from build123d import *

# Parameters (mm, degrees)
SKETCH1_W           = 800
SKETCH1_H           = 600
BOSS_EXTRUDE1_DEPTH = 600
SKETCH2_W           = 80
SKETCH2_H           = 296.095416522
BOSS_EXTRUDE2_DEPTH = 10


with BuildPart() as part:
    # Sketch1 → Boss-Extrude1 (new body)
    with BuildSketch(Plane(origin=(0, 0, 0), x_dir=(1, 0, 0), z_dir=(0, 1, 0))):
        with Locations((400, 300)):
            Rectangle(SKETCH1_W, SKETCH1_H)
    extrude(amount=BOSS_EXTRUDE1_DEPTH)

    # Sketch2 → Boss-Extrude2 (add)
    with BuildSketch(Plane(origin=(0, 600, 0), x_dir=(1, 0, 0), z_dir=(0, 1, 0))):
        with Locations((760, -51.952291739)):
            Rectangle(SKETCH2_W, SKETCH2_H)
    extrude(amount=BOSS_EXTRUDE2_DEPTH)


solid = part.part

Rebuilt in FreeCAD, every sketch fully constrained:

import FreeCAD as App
import Part
import Sketcher


def add_polygon(sketch, points):
    """Adds a closed chain of lines whose ends are joined by coincident constraints."""
    first, n = sketch.GeometryCount, len(points)
    for a, b in zip(points, points[1:] + points[:1]):
        sketch.addGeometry(Part.LineSegment(App.Vector(*a, 0), App.Vector(*b, 0)), False)
    for i in range(n):
        sketch.addConstraint(Sketcher.Constraint("Coincident", first + i, 2, first + (i + 1) % n, 1))

doc = App.newDocument("Part")
body = doc.addObject("PartDesign::Body", "Body")

# Sketch on XZ plane
sketch1 = doc.addObject("Sketcher::SketchObject", "Sketch")
body.addObject(sketch1)
sketch1.AttachmentSupport = (doc.XZ_Plane, [""])
sketch1.MapMode = "FlatFace"
add_polygon(sketch1, [(0, -600), (0, 0), (800, 0), (800, -600)])  # lines 0-3
sketch1.addConstraint([
    Sketcher.Constraint("Vertical", 0),
    Sketcher.Constraint("Horizontal", 1),
    Sketcher.Constraint("Vertical", 2),
    Sketcher.Constraint("Horizontal", 3),
    Sketcher.Constraint("Coincident", 0, 2, -1, 1),
    Sketcher.Constraint("DistanceX", 1, 1, 1, 2, 800.0),
    Sketcher.Constraint("DistanceY", 0, 1, 0, 2, 600.0),
])
pad1 = doc.addObject("PartDesign::Pad", "Pad")
body.addObject(pad1)
pad1.Profile = sketch1
pad1.Length = 600
pad1.Reversed = True

# Sketch on XZ plane
sketch2 = doc.addObject("Sketcher::SketchObject", "Sketch001")
body.addObject(sketch2)
sketch2.AttachmentSupport = (doc.XZ_Plane, [""])
sketch2.MapMode = "FlatFace"
sketch2.AttachmentOffset = App.Placement(App.Vector(0, 0, -600), App.Rotation())
add_polygon(sketch2, [(720, -96), (720, 200), (800, 200), (800, -96)])  # lines 0-3
sketch2.addConstraint([
    Sketcher.Constraint("Vertical", 0),
    Sketcher.Constraint("Horizontal", 1),
    Sketcher.Constraint("Vertical", 2),
    Sketcher.Constraint("Horizontal", 3),
    Sketcher.Constraint("DistanceX", 1, 1, 1, 2, 80.0),
    Sketcher.Constraint("DistanceX", -1, 1, 0, 2, 720.0),
    Sketcher.Constraint("DistanceY", -1, 1, 0, 2, 200.0),
    Sketcher.Constraint("DistanceY", 0, 1, 0, 2, 296.095417),
])
pad2 = doc.addObject("PartDesign::Pad", "Pad001")
body.addObject(pad2)
pad2.Profile = sketch2
pad2.Length = 10
pad2.Reversed = True

doc.recompute()
